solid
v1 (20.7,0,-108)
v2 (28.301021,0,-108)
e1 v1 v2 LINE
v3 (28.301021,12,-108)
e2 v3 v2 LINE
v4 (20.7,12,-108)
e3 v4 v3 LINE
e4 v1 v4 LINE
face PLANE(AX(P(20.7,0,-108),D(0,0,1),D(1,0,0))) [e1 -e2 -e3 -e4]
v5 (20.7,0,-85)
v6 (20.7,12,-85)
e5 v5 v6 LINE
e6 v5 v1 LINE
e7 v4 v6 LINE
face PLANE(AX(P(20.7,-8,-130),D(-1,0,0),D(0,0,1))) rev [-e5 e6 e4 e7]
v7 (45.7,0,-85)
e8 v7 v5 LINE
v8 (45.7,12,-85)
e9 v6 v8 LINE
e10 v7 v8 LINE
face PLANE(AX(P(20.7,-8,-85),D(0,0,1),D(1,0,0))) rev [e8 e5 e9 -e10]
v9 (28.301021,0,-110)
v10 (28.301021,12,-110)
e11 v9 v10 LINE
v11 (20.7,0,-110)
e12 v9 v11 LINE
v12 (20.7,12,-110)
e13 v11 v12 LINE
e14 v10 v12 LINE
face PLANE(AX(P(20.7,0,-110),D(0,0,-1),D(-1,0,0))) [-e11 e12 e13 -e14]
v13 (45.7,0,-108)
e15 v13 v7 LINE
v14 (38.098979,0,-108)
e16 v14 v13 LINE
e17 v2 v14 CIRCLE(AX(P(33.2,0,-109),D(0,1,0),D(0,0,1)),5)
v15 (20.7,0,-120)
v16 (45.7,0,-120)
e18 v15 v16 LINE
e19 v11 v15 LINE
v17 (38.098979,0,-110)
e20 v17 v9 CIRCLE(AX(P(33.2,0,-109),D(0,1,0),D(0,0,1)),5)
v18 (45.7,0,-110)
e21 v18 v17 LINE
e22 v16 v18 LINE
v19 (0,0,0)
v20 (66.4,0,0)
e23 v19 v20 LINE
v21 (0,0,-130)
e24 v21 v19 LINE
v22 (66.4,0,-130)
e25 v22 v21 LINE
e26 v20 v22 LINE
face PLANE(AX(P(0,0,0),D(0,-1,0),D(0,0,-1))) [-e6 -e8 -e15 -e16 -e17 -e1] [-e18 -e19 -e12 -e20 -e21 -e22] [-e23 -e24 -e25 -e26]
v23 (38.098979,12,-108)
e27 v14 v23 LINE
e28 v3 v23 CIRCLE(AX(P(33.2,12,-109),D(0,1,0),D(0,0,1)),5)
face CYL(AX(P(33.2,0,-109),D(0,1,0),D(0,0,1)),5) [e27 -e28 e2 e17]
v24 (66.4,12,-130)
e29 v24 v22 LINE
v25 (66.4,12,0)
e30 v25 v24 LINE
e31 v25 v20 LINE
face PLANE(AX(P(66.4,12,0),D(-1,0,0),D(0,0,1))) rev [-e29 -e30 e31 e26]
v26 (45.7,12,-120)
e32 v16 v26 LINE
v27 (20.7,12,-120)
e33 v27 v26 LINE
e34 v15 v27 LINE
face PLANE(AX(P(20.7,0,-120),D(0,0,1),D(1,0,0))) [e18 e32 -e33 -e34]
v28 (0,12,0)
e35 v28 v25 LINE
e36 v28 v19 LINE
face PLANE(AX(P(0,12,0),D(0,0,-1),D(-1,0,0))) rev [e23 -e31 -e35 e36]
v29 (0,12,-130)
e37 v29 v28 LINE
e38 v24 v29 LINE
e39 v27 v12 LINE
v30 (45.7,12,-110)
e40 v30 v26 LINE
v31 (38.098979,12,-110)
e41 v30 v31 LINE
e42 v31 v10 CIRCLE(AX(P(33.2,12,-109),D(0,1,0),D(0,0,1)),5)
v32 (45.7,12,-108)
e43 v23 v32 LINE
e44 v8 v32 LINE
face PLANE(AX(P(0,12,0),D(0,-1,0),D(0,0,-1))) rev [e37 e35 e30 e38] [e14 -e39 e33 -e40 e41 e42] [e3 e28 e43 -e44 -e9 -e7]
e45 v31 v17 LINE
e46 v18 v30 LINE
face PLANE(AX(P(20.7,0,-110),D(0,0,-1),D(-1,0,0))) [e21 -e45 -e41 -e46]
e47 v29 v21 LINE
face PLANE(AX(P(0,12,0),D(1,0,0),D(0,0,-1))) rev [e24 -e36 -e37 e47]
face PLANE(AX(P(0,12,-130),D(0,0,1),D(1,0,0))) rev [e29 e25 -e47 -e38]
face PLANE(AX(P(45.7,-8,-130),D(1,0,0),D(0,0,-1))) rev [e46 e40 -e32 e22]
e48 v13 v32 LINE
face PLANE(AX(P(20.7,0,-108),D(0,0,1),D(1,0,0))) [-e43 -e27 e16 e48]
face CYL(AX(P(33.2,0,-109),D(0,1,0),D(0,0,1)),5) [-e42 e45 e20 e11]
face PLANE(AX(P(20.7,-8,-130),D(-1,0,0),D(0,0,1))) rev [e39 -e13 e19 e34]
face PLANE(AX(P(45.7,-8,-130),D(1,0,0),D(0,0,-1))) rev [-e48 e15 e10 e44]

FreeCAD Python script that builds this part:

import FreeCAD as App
import Part
import Sketcher

V = App.Vector
Q = App.Units.Quantity

doc = App.newDocument("Part")
body = doc.addObject("PartDesign::Body", "Body")

# Sketch on XZ plane
sketch1 = doc.addObject("Sketcher::SketchObject", "Sketch")
body.addObject(sketch1)
sketch1.AttachmentSupport = (doc.XZ_Plane, [""])
sketch1.MapMode = "FlatFace"
sketch1.addGeometry(Part.LineSegment(V(0, -130, 0), V(0, 0, 0)), False)
sketch1.addGeometry(Part.LineSegment(V(0, 0, 0), V(66.4, 0, 0)), False)
sketch1.addGeometry(Part.LineSegment(V(66.4, 0, 0), V(66.4, -130, 0)), False)
sketch1.addGeometry(Part.LineSegment(V(66.4, -130, 0), V(0, -130, 0)), False)
sketch1.addConstraint(Sketcher.Constraint("Coincident", 0, 2, 1, 1))
sketch1.addConstraint(Sketcher.Constraint("Coincident", 1, 2, 2, 1))
sketch1.addConstraint(Sketcher.Constraint("Coincident", 2, 2, 3, 1))
sketch1.addConstraint(Sketcher.Constraint("Coincident", 3, 2, 0, 1))
sketch1.addConstraint(Sketcher.Constraint("Vertical", 0))
sketch1.addConstraint(Sketcher.Constraint("Horizontal", 1))
sketch1.addConstraint(Sketcher.Constraint("Vertical", 2))
sketch1.addConstraint(Sketcher.Constraint("Horizontal", 3))
sketch1.addConstraint(Sketcher.Constraint("Coincident", 0, 2, -1, 1))
sketch1.addConstraint(Sketcher.Constraint("DistanceY", 0, 1, 0, 2, Q("130 mm")))
sketch1.addConstraint(Sketcher.Constraint("DistanceX", 1, 1, 1, 2, Q("66.4 mm")))
pad1 = doc.addObject("PartDesign::Pad", "Pad")
body.addObject(pad1)
pad1.Profile = sketch1
pad1.Length = 12
pad1.Reversed = True

# Sketch on XZ plane
sketch2 = doc.addObject("Sketcher::SketchObject", "Sketch001")
body.addObject(sketch2)
sketch2.AttachmentSupport = (doc.XZ_Plane, [""])
sketch2.MapMode = "FlatFace"
sketch2.AttachmentOffset = App.Placement(V(0, 0, -12), App.Rotation())
sketch2.addGeometry(Part.LineSegment(V(20.7, -130, 0), V(20.7, -85, 0)), False)
sketch2.addGeometry(Part.LineSegment(V(20.7, -85, 0), V(45.7, -85, 0)), False)
sketch2.addGeometry(Part.LineSegment(V(45.7, -85, 0), V(45.7, -130, 0)), False)
sketch2.addGeometry(Part.LineSegment(V(45.7, -130, 0), V(20.7, -130, 0)), False)
sketch2.addConstraint(Sketcher.Constraint("Coincident", 0, 2, 1, 1))
sketch2.addConstraint(Sketcher.Constraint("Coincident", 1, 2, 2, 1))
sketch2.addConstraint(Sketcher.Constraint("Coincident", 2, 2, 3, 1))
sketch2.addConstraint(Sketcher.Constraint("Coincident", 3, 2, 0, 1))
sketch2.addConstraint(Sketcher.Constraint("Vertical", 0))
sketch2.addConstraint(Sketcher.Constraint("Horizontal", 1))
sketch2.addConstraint(Sketcher.Constraint("Vertical", 2))
sketch2.addConstraint(Sketcher.Constraint("Horizontal", 3))
sketch2.addConstraint(Sketcher.Constraint("DistanceX", 1, 1, 1, 2, Q("25 mm")))
sketch2.addConstraint(Sketcher.Constraint("DistanceY", 0, 1, 0, 2, Q("45 mm")))
sketch2.addConstraint(Sketcher.Constraint("DistanceY", 0, 2, -1, 1, Q("85 mm")))
sketch2.addConstraint(Sketcher.Constraint("DistanceX", -1, 1, 0, 2, Q("20.7 mm")))
pocket1 = doc.addObject("PartDesign::Pocket", "Pocket")
body.addObject(pocket1)
pocket1.Profile = sketch2
pocket1.Length = 20
pocket1.Reversed = True

# Sketch on XZ plane
sketch3 = doc.addObject("Sketcher::SketchObject", "Sketch002")
body.addObject(sketch3)
sketch3.AttachmentSupport = (doc.XZ_Plane, [""])
sketch3.MapMode = "FlatFace"
sketch3.AttachmentOffset = App.Placement(V(0, 0, -12), App.Rotation())
sketch3.addGeometry(Part.LineSegment(V(20.7, -130, 0), V(20.7, -120, 0)), False)
sketch3.addGeometry(Part.LineSegment(V(20.7, -120, 0), V(45.7, -120, 0)), False)
sketch3.addGeometry(Part.LineSegment(V(45.7, -120, 0), V(45.7, -130, 0)), False)
sketch3.addGeometry(Part.LineSegment(V(45.7, -130, 0), V(20.7, -130, 0)), False)
sketch3.addConstraint(Sketcher.Constraint("Coincident", 0, 2, 1, 1))
sketch3.addConstraint(Sketcher.Constraint("Coincident", 1, 2, 2, 1))
sketch3.addConstraint(Sketcher.Constraint("Coincident", 2, 2, 3, 1))
sketch3.addConstraint(Sketcher.Constraint("Coincident", 3, 2, 0, 1))
sketch3.addConstraint(Sketcher.Constraint("Vertical", 0))
sketch3.addConstraint(Sketcher.Constraint("Horizontal", 1))
sketch3.addConstraint(Sketcher.Constraint("Vertical", 2))
sketch3.addConstraint(Sketcher.Constraint("Horizontal", 3))
sketch3.addConstraint(Sketcher.Constraint("DistanceX", 1, 1, 1, 2, Q("25 mm")))
sketch3.addConstraint(Sketcher.Constraint("DistanceY", 0, 1, 0, 2, Q("10 mm")))
sketch3.addConstraint(Sketcher.Constraint("DistanceY", 0, 2, -1, 1, Q("120 mm")))
sketch3.addConstraint(Sketcher.Constraint("DistanceX", -1, 1, 0, 2, Q("20.7 mm")))
pad2 = doc.addObject("PartDesign::Pad", "Pad001")
body.addObject(pad2)
pad2.Profile = sketch3
pad2.Length = 12
body2 = doc.addObject("PartDesign::Body", "Body001")

# Sketch on XZ plane
sketch4 = doc.addObject("Sketcher::SketchObject", "Sketch003")
body2.addObject(sketch4)
sketch4.AttachmentSupport = (doc.getObject("XZ_Plane001"), [""])
sketch4.MapMode = "FlatFace"
sketch4.AttachmentOffset = App.Placement(V(0, 0, -12), App.Rotation())
sketch4.addGeometry(Part.Circle(V(33.2, -109, 0), V(0, 0, 1), 5), False)
sketch4.addConstraint(Sketcher.Constraint("Diameter", 0, Q("10 mm")))
sketch4.addConstraint(Sketcher.Constraint("DistanceY", 0, 3, -1, 1, Q("109 mm")))
sketch4.addConstraint(Sketcher.Constraint("DistanceX", -1, 1, 0, 3, Q("33.2 mm")))
pad3 = doc.addObject("PartDesign::Pad", "Pad002")
body2.addObject(pad3)
pad3.Profile = sketch4
pad3.Length = 12
body.AllowCompound = True
doc.recompute()

boolean = doc.addObject("PartDesign::Boolean", "Boolean")
body.addObject(boolean)
boolean.Type = "Fuse"
boolean.addObjects([body2])

# Sketch on XZ plane
sketch5 = doc.addObject("Sketcher::SketchObject", "Sketch004")
body.addObject(sketch5)
sketch5.AttachmentSupport = (doc.XZ_Plane, [""])
sketch5.MapMode = "FlatFace"
sketch5.AttachmentOffset = App.Placement(V(0, 0, -12), App.Rotation())
sketch5.addGeometry(Part.LineSegment(V(20.7, -110, 0), V(20.7, -108, 0)), False)
sketch5.addGeometry(Part.LineSegment(V(20.7, -108, 0), V(45.7, -108, 0)), False)
sketch5.addGeometry(Part.LineSegment(V(45.7, -108, 0), V(45.7, -110, 0)), False)
sketch5.addGeometry(Part.LineSegment(V(45.7, -110, 0), V(20.7, -110, 0)), False)
sketch5.addConstraint(Sketcher.Constraint("Coincident", 0, 2, 1, 1))
sketch5.addConstraint(Sketcher.Constraint("Coincident", 1, 2, 2, 1))
sketch5.addConstraint(Sketcher.Constraint("Coincident", 2, 2, 3, 1))
sketch5.addConstraint(Sketcher.Constraint("Coincident", 3, 2, 0, 1))
sketch5.addConstraint(Sketcher.Constraint("Vertical", 0))
sketch5.addConstraint(Sketcher.Constraint("Horizontal", 1))
sketch5.addConstraint(Sketcher.Constraint("Vertical", 2))
sketch5.addConstraint(Sketcher.Constraint("Horizontal", 3))
sketch5.addConstraint(Sketcher.Constraint("DistanceX", 1, 1, 1, 2, Q("25 mm")))
sketch5.addConstraint(Sketcher.Constraint("DistanceY", 0, 1, 0, 2, Q("2 mm")))
sketch5.addConstraint(Sketcher.Constraint("DistanceY", 0, 2, -1, 1, Q("108 mm")))
sketch5.addConstraint(Sketcher.Constraint("DistanceX", -1, 1, 0, 2, Q("20.7 mm")))
pad4 = doc.addObject("PartDesign::Pad", "Pad003")
body.addObject(pad4)
pad4.Profile = sketch5
pad4.Length = 12

doc.recompute()
